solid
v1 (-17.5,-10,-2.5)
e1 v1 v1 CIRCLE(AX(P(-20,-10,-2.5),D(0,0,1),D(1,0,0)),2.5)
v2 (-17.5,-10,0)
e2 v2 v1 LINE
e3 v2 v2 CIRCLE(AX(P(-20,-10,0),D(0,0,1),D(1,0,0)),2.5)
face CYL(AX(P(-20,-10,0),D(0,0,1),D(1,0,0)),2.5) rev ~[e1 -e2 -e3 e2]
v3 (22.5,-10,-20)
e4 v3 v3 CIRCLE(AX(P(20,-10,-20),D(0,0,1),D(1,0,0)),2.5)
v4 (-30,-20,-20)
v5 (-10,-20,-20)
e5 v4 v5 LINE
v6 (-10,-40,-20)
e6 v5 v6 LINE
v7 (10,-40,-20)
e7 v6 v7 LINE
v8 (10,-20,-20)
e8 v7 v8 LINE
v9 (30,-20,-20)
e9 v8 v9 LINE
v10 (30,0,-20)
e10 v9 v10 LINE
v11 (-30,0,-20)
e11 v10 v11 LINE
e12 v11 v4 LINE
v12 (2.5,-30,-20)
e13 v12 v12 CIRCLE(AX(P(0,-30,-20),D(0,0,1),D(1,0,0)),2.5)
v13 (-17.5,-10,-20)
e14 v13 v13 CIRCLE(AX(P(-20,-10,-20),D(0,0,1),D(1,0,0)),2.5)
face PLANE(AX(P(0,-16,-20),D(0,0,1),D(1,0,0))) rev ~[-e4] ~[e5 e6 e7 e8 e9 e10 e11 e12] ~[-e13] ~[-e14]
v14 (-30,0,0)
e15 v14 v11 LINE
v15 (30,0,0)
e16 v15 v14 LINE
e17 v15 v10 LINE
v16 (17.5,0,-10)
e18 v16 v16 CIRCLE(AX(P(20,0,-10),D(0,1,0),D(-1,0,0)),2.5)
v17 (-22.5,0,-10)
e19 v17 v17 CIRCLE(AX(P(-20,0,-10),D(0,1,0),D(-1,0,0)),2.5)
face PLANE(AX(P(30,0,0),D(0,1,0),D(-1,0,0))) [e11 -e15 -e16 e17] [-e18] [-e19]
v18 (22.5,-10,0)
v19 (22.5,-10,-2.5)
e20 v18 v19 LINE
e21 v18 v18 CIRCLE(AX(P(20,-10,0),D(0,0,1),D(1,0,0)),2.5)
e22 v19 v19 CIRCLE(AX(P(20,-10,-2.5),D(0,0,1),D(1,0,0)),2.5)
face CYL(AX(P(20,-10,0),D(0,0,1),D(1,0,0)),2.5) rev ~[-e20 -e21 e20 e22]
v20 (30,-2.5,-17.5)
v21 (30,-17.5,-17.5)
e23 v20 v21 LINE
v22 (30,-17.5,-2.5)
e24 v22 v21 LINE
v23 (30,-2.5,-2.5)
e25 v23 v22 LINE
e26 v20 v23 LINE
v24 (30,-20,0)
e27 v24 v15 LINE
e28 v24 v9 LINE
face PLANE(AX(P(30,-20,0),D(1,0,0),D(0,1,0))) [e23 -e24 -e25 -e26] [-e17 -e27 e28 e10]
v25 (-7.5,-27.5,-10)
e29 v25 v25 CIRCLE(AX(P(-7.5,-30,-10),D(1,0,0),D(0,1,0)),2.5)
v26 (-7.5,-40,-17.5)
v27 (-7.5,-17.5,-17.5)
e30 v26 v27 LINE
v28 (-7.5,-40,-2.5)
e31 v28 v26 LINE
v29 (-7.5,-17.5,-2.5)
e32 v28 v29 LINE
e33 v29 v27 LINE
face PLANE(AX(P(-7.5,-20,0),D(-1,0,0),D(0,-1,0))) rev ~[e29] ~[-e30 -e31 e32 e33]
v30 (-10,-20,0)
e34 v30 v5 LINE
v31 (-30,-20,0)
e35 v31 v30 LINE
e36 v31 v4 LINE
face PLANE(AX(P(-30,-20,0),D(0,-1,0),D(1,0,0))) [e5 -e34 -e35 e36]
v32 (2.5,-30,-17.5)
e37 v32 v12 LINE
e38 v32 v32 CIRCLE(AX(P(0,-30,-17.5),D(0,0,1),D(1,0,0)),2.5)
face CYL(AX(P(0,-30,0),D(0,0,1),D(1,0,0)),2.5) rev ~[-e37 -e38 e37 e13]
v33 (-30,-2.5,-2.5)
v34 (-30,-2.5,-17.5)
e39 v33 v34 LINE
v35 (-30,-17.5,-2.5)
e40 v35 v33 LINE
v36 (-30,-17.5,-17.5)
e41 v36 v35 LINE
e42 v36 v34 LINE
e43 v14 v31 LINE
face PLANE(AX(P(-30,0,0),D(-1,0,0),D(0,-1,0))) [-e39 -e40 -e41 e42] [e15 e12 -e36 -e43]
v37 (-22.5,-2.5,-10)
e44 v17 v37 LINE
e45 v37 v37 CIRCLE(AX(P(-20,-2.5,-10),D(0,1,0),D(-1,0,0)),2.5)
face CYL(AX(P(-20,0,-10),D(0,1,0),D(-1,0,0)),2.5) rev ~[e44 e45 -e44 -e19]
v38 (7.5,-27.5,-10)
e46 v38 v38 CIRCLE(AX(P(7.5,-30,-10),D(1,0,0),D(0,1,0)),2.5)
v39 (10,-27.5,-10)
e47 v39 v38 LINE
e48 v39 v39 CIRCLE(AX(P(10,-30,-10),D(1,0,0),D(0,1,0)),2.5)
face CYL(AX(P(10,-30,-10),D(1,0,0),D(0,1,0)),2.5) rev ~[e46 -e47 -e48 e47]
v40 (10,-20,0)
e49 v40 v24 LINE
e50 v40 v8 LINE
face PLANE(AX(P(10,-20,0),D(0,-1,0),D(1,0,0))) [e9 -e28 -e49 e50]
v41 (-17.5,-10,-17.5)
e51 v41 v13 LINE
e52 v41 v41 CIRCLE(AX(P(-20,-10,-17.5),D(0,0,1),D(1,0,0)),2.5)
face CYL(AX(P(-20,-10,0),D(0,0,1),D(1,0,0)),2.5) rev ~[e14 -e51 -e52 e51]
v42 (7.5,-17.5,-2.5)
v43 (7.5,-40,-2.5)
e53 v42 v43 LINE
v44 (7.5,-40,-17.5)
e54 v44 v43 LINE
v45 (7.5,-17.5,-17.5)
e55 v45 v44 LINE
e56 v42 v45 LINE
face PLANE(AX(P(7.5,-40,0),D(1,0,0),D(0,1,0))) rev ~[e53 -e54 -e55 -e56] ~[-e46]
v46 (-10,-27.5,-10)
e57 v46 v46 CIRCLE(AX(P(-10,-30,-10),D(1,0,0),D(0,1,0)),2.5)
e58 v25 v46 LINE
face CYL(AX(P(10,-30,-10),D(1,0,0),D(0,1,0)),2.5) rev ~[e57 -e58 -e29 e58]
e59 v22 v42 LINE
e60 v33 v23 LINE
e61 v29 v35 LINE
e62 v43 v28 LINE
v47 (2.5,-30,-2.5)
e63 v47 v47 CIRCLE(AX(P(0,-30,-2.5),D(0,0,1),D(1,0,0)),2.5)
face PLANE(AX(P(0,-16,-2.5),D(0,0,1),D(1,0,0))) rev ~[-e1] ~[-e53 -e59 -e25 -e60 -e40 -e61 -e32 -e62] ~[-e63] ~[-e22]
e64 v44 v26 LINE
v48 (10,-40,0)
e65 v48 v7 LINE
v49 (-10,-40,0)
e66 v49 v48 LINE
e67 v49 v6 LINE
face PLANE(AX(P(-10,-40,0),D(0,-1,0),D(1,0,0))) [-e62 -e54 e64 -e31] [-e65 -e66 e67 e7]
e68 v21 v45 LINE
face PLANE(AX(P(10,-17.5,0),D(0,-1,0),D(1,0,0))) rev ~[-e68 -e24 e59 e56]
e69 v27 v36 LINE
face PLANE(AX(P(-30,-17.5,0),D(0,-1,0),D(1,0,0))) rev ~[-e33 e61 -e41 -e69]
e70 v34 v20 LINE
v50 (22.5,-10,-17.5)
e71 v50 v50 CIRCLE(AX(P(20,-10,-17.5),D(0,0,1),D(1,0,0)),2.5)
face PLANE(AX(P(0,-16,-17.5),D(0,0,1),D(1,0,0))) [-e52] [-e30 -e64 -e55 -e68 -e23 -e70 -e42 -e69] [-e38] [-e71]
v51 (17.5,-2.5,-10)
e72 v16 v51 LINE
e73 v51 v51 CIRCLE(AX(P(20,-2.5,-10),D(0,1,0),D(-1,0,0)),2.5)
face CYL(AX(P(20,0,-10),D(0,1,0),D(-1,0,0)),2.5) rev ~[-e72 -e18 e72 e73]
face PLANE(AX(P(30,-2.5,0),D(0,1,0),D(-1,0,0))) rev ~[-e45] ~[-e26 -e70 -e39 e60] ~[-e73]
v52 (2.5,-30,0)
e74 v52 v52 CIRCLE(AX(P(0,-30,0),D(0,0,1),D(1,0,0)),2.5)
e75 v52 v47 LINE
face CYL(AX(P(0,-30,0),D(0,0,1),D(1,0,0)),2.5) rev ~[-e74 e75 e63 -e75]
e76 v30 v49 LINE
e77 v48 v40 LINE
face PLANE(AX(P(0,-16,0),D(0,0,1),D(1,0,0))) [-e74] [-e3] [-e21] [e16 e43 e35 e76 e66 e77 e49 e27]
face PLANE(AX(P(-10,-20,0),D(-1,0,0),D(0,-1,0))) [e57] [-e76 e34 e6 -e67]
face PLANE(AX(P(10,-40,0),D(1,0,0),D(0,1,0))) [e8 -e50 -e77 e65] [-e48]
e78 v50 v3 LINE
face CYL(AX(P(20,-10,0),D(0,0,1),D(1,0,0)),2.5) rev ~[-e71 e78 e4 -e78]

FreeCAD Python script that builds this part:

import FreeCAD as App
import Part
import Sketcher
Q = App.Units.Quantity


def faces_at(feature, points):
    """Names of the faces that lie closest to the given points."""
    faces = feature.Shape.Faces
    near = lambda p: min(range(len(faces)), key=lambda i: faces[i].distToShape(Part.Vertex(*p))[0])
    return sorted({f"Face{near(p) + 1}" for p in points})

doc = App.newDocument("Part")
params = doc.addObject("Spreadsheet::Sheet", "Params")
for row, (alias, value) in enumerate([
    ("sketch1_width", "60 mm"),
    ("pad1_length", "20 mm"),
    ("thickness_wall", "2.5 mm"),
    ("sketch2_diameter", "5 mm"),
    ("sketch3_diameter", "5 mm"),
    ("pocket2_length", "2.5 mm"),
    ("sketch4_diameter", "5 mm"),
], start=1):
    params.set(f"A{row}", alias)
    params.set(f"B{row}", "=" + value)
    params.setAlias(f"B{row}", alias)

body = doc.addObject("PartDesign::Body", "Body")

# Sketch on XY plane
sketch1 = doc.addObject("Sketcher::SketchObject", "Sketch")
body.addObject(sketch1)
sketch1.AttachmentSupport = (doc.XY_Plane, [""])
sketch1.MapMode = "FlatFace"
sketch1.addGeometry([
    Part.LineSegment(App.Vector(30, 0, 0), App.Vector(-30, 0, 0)),  # 0
    Part.LineSegment(App.Vector(-30, 0, 0), App.Vector(-30, -20, 0)),  # 1
    Part.LineSegment(App.Vector(-30, -20, 0), App.Vector(-10, -20, 0)),  # 2
    Part.LineSegment(App.Vector(-10, -20, 0), App.Vector(-10, -40, 0)),  # 3
    Part.LineSegment(App.Vector(-10, -40, 0), App.Vector(10, -40, 0)),  # 4
    Part.LineSegment(App.Vector(10, -40, 0), App.Vector(10, -20, 0)),  # 5
    Part.LineSegment(App.Vector(10, -20, 0), App.Vector(30, -20, 0)),  # 6
    Part.LineSegment(App.Vector(30, -20, 0), App.Vector(30, 0, 0)),  # 7
], False)
sketch1.addConstraint([
    Sketcher.Constraint("Coincident", 0, 2, 1, 1),
    Sketcher.Constraint("Coincident", 1, 2, 2, 1),
    Sketcher.Constraint("Coincident", 2, 2, 3, 1),
    Sketcher.Constraint("Coincident", 3, 2, 4, 1),
    Sketcher.Constraint("Coincident", 4, 2, 5, 1),
    Sketcher.Constraint("Coincident", 5, 2, 6, 1),
    Sketcher.Constraint("Coincident", 6, 2, 7, 1),
    Sketcher.Constraint("Coincident", 7, 2, 0, 1),
    Sketcher.Constraint("Horizontal", 0),
    Sketcher.Constraint("Vertical", 1),
    Sketcher.Constraint("Horizontal", 2),
    Sketcher.Constraint("Vertical", 3),
    Sketcher.Constraint("Horizontal", 4),
    Sketcher.Constraint("Vertical", 5),
    Sketcher.Constraint("Horizontal", 6),
    Sketcher.Constraint("Vertical", 7),
    Sketcher.Constraint("Symmetric", 0, 2, 7, 2, -1, 1),
    Sketcher.Constraint("Symmetric", 2, 2, 5, 2, -2),
    Sketcher.Constraint("Equal", 2, 4),
    Sketcher.Constraint("Equal", 6, 1),
    Sketcher.Constraint("Equal", 1, 3),
    Sketcher.Constraint("DistanceX", 0, 2, 0, 1, Q("60 mm")),
])
sketch1.setExpression("Constraints[21]", "Params.sketch1_width")
pad1 = doc.addObject("PartDesign::Pad", "Pad")
body.addObject(pad1)
pad1.Profile = sketch1
pad1.setExpression("Length", "Params.pad1_length")
pad1.Reversed = True
doc.recompute()

thickness = doc.addObject("PartDesign::Thickness", "Thickness")
body.addObject(thickness)
thickness.Base = (pad1, faces_at(pad1, [(30, -10, -10), (0, -40, -10), (-30, -10, -10)]))
thickness.setExpression("Value", "Params.thickness_wall")
thickness.Reversed = True
thickness.Join = "Intersection"

# Sketch on XY plane
sketch2 = doc.addObject("Sketcher::SketchObject", "Sketch001")
body.addObject(sketch2)
sketch2.AttachmentSupport = (doc.XY_Plane, [""])
sketch2.MapMode = "FlatFace"
sketch2.addGeometry([
    Part.Circle(App.Vector(-20, -10, 0), App.Vector(0, 0, 1), 2.5),
    Part.Circle(App.Vector(20, -10, 0), App.Vector(0, 0, 1), 2.5),
    Part.Circle(App.Vector(0, -30, 0), App.Vector(0, 0, 1), 2.5),
], False)
sketch2.addConstraint([
    Sketcher.Constraint("Equal", 0, 1),
    Sketcher.Constraint("Equal", 1, 2),
    Sketcher.Constraint("Symmetric", 0, 3, 1, 3, -2),
    Sketcher.Constraint("PointOnObject", 2, 3, -2),
    Sketcher.Constraint("Diameter", 0, Q("5 mm")),
    Sketcher.Constraint("DistanceX", 0, 3, -1, 1, Q("20 mm")),
    Sketcher.Constraint("DistanceY", 0, 3, -1, 1, Q("10 mm")),
    Sketcher.Constraint("DistanceY", 2, 3, -1, 1, Q("30 mm")),
])
sketch2.setExpression("Constraints[4]", "Params.sketch2_diameter")
pocket1 = doc.addObject("PartDesign::Pocket", "Pocket")
body.addObject(pocket1)
pocket1.Profile = sketch2
pocket1.Type = "ThroughAll"

# Sketch on XZ plane
sketch3 = doc.addObject("Sketcher::SketchObject", "Sketch002")
body.addObject(sketch3)
sketch3.AttachmentSupport = (doc.XZ_Plane, [""])
sketch3.MapMode = "FlatFace"
sketch3.addGeometry([
    Part.Circle(App.Vector(20, -10, 0), App.Vector(0, 0, 1), 2.5),
    Part.Circle(App.Vector(-20, -10, 0), App.Vector(0, 0, 1), 2.5),
], False)
sketch3.addConstraint([
    Sketcher.Constraint("Equal", 0, 1),
    Sketcher.Constraint("Symmetric", 0, 3, 1, 3, -2),
    Sketcher.Constraint("Diameter", 0, Q("5 mm")),
    Sketcher.Constraint("DistanceX", -1, 1, 0, 3, Q("20 mm")),
    Sketcher.Constraint("DistanceY", 0, 3, -1, 1, Q("10 mm")),
])
sketch3.setExpression("Constraints[2]", "Params.sketch3_diameter")
pocket2 = doc.addObject("PartDesign::Pocket", "Pocket001")
body.addObject(pocket2)
pocket2.Profile = sketch3
pocket2.setExpression("Length", "Params.pocket2_length")
pocket2.Reversed = True

# Sketch on YZ plane
sketch4 = doc.addObject("Sketcher::SketchObject", "Sketch003")
body.addObject(sketch4)
sketch4.AttachmentSupport = (doc.YZ_Plane, [""])
sketch4.MapMode = "FlatFace"
sketch4.AttachmentOffset = App.Placement(App.Vector(0, 0, 10), App.Rotation())
sketch4.addGeometry(Part.Circle(App.Vector(-30, -10, 0), App.Vector(0, 0, 1), 2.5), False)
sketch4.addConstraint([
    Sketcher.Constraint("Diameter", 0, Q("5 mm")),
    Sketcher.Constraint("DistanceX", 0, 3, -1, 1, Q("30 mm")),
    Sketcher.Constraint("DistanceY", 0, 3, -1, 1, Q("10 mm")),
])
sketch4.setExpression("Constraints[0]", "Params.sketch4_diameter")
pocket3 = doc.addObject("PartDesign::Pocket", "Pocket002")
body.addObject(pocket3)
pocket3.Profile = sketch4
pocket3.Type = "ThroughAll"

doc.recompute()
